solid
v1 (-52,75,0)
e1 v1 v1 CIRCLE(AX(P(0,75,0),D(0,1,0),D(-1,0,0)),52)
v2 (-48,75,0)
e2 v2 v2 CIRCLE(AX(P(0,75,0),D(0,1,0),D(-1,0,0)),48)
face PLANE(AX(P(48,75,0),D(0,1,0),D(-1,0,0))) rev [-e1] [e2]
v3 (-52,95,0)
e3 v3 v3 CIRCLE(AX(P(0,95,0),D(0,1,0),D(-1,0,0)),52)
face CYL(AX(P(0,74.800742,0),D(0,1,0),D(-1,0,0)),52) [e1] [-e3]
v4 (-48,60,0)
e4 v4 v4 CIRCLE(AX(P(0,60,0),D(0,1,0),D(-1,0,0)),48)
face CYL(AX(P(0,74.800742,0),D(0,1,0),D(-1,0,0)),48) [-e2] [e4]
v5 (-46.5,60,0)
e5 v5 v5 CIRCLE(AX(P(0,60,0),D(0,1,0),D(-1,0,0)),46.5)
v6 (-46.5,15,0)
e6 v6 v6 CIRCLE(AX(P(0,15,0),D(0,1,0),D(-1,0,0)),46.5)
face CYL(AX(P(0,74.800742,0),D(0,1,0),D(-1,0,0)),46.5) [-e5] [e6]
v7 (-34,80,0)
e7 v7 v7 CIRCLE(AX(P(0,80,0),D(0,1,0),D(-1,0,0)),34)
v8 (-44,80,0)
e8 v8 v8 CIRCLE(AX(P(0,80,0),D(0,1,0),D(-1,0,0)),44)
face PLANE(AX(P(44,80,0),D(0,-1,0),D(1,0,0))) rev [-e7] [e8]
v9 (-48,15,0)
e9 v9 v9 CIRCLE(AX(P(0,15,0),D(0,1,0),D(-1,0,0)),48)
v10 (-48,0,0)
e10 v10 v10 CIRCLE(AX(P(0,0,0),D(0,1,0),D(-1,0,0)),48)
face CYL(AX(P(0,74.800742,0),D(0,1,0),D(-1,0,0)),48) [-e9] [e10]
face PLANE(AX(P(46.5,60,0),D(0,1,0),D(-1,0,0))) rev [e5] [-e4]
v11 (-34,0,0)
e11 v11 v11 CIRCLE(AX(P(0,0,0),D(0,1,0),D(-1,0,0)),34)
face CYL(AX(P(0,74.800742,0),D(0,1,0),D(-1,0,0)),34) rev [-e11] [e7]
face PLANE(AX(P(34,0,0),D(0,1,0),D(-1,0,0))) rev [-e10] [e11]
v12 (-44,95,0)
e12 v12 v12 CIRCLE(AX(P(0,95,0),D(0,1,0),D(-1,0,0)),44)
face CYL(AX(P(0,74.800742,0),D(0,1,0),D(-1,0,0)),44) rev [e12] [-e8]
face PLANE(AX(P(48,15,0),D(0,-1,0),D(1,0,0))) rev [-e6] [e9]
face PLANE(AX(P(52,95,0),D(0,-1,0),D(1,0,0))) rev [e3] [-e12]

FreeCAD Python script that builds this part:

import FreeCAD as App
import Part
import Sketcher

doc = App.newDocument("Part")
body = doc.addObject("PartDesign::Body", "Body")

sketch1 = body.newObject("Sketcher::SketchObject", "Sketch")
sketch1.AttachmentSupport = (doc.getObject("XY_Plane"), [""])
sketch1.MapMode = "FlatFace"
sketch1.addGeometry(Part.LineSegment(App.Vector(34, 0, 0), App.Vector(48, 0, 0)), False)
sketch1.addGeometry(Part.LineSegment(App.Vector(48, 0, 0), App.Vector(48, 15, 0)), False)
sketch1.addGeometry(Part.LineSegment(App.Vector(48, 15, 0), App.Vector(46.5, 15, 0)), False)
sketch1.addGeometry(Part.LineSegment(App.Vector(46.5, 15, 0), App.Vector(46.5, 60, 0)), False)
sketch1.addGeometry(Part.LineSegment(App.Vector(46.5, 60, 0), App.Vector(48, 60, 0)), False)
sketch1.addGeometry(Part.LineSegment(App.Vector(48, 60, 0), App.Vector(48, 75, 0)), False)
sketch1.addGeometry(Part.LineSegment(App.Vector(48, 75, 0), App.Vector(52, 75, 0)), False)
sketch1.addGeometry(Part.LineSegment(App.Vector(52, 75, 0), App.Vector(52, 95, 0)), False)
sketch1.addGeometry(Part.LineSegment(App.Vector(52, 95, 0), App.Vector(44, 95, 0)), False)
sketch1.addGeometry(Part.LineSegment(App.Vector(44, 95, 0), App.Vector(44, 80, 0)), False)
sketch1.addGeometry(Part.LineSegment(App.Vector(44, 80, 0), App.Vector(34, 80, 0)), False)
sketch1.addGeometry(Part.LineSegment(App.Vector(34, 80, 0), App.Vector(34, 0, 0)), False)
sketch1.addConstraint(Sketcher.Constraint("Coincident", 0, 2, 1, 1))
sketch1.addConstraint(Sketcher.Constraint("Coincident", 1, 2, 2, 1))
sketch1.addConstraint(Sketcher.Constraint("Coincident", 2, 2, 3, 1))
sketch1.addConstraint(Sketcher.Constraint("Coincident", 3, 2, 4, 1))
sketch1.addConstraint(Sketcher.Constraint("Coincident", 4, 2, 5, 1))
sketch1.addConstraint(Sketcher.Constraint("Coincident", 5, 2, 6, 1))
sketch1.addConstraint(Sketcher.Constraint("Coincident", 6, 2, 7, 1))
sketch1.addConstraint(Sketcher.Constraint("Coincident", 7, 2, 8, 1))
sketch1.addConstraint(Sketcher.Constraint("Coincident", 8, 2, 9, 1))
sketch1.addConstraint(Sketcher.Constraint("Coincident", 9, 2, 10, 1))
sketch1.addConstraint(Sketcher.Constraint("Coincident", 10, 2, 11, 1))
sketch1.addConstraint(Sketcher.Constraint("Coincident", 11, 2, 0, 1))
sketch1.addConstraint(Sketcher.Constraint("Horizontal", 0))
sketch1.addConstraint(Sketcher.Constraint("Vertical", 1))
sketch1.addConstraint(Sketcher.Constraint("Horizontal", 2))
sketch1.addConstraint(Sketcher.Constraint("Vertical", 3))
sketch1.addConstraint(Sketcher.Constraint("Horizontal", 4))
sketch1.addConstraint(Sketcher.Constraint("Vertical", 5))
sketch1.addConstraint(Sketcher.Constraint("Horizontal", 6))
sketch1.addConstraint(Sketcher.Constraint("Vertical", 7))
sketch1.addConstraint(Sketcher.Constraint("Horizontal", 8))
sketch1.addConstraint(Sketcher.Constraint("Vertical", 9))
sketch1.addConstraint(Sketcher.Constraint("Horizontal", 10))
sketch1.addConstraint(Sketcher.Constraint("Vertical", 11))
sketch1.addConstraint(Sketcher.Constraint("PointOnObject", 0, 2, -1))
sketch1.addConstraint(Sketcher.Constraint("Vertical", 1, 2, 4, 2))
sketch1.addConstraint(Sketcher.Constraint("Equal", 1, 5))
sketch1.addConstraint(Sketcher.Constraint("Equal", 5, 9))
sketch1.addConstraint(Sketcher.Constraint("DistanceX", 0, 1, 0, 2, 14.0))
sketch1.addConstraint(Sketcher.Constraint("DistanceX", 6, 1, 6, 2, 4.0))
sketch1.addConstraint(Sketcher.Constraint("DistanceX", 8, 2, 8, 1, 8.0))
sketch1.addConstraint(Sketcher.Constraint("DistanceY", 1, 1, 1, 2, 15.0))
sketch1.addConstraint(Sketcher.Constraint("DistanceY", 3, 1, 3, 2, 45.0))
sketch1.addConstraint(Sketcher.Constraint("DistanceY", 7, 1, 7, 2, 20.0))
sketch1.addConstraint(Sketcher.Constraint("DistanceX", 2, 2, 2, 1, 1.5))
sketch1.addConstraint(Sketcher.Constraint("DistanceX", -1, 1, 0, 2, 48.0))
revolution = body.newObject("PartDesign::Revolution", "Revolution")
revolution.Profile = sketch1
revolution.ReferenceAxis = (sketch1, ["V_Axis"])
revolution.Angle = 360

doc.recompute()
